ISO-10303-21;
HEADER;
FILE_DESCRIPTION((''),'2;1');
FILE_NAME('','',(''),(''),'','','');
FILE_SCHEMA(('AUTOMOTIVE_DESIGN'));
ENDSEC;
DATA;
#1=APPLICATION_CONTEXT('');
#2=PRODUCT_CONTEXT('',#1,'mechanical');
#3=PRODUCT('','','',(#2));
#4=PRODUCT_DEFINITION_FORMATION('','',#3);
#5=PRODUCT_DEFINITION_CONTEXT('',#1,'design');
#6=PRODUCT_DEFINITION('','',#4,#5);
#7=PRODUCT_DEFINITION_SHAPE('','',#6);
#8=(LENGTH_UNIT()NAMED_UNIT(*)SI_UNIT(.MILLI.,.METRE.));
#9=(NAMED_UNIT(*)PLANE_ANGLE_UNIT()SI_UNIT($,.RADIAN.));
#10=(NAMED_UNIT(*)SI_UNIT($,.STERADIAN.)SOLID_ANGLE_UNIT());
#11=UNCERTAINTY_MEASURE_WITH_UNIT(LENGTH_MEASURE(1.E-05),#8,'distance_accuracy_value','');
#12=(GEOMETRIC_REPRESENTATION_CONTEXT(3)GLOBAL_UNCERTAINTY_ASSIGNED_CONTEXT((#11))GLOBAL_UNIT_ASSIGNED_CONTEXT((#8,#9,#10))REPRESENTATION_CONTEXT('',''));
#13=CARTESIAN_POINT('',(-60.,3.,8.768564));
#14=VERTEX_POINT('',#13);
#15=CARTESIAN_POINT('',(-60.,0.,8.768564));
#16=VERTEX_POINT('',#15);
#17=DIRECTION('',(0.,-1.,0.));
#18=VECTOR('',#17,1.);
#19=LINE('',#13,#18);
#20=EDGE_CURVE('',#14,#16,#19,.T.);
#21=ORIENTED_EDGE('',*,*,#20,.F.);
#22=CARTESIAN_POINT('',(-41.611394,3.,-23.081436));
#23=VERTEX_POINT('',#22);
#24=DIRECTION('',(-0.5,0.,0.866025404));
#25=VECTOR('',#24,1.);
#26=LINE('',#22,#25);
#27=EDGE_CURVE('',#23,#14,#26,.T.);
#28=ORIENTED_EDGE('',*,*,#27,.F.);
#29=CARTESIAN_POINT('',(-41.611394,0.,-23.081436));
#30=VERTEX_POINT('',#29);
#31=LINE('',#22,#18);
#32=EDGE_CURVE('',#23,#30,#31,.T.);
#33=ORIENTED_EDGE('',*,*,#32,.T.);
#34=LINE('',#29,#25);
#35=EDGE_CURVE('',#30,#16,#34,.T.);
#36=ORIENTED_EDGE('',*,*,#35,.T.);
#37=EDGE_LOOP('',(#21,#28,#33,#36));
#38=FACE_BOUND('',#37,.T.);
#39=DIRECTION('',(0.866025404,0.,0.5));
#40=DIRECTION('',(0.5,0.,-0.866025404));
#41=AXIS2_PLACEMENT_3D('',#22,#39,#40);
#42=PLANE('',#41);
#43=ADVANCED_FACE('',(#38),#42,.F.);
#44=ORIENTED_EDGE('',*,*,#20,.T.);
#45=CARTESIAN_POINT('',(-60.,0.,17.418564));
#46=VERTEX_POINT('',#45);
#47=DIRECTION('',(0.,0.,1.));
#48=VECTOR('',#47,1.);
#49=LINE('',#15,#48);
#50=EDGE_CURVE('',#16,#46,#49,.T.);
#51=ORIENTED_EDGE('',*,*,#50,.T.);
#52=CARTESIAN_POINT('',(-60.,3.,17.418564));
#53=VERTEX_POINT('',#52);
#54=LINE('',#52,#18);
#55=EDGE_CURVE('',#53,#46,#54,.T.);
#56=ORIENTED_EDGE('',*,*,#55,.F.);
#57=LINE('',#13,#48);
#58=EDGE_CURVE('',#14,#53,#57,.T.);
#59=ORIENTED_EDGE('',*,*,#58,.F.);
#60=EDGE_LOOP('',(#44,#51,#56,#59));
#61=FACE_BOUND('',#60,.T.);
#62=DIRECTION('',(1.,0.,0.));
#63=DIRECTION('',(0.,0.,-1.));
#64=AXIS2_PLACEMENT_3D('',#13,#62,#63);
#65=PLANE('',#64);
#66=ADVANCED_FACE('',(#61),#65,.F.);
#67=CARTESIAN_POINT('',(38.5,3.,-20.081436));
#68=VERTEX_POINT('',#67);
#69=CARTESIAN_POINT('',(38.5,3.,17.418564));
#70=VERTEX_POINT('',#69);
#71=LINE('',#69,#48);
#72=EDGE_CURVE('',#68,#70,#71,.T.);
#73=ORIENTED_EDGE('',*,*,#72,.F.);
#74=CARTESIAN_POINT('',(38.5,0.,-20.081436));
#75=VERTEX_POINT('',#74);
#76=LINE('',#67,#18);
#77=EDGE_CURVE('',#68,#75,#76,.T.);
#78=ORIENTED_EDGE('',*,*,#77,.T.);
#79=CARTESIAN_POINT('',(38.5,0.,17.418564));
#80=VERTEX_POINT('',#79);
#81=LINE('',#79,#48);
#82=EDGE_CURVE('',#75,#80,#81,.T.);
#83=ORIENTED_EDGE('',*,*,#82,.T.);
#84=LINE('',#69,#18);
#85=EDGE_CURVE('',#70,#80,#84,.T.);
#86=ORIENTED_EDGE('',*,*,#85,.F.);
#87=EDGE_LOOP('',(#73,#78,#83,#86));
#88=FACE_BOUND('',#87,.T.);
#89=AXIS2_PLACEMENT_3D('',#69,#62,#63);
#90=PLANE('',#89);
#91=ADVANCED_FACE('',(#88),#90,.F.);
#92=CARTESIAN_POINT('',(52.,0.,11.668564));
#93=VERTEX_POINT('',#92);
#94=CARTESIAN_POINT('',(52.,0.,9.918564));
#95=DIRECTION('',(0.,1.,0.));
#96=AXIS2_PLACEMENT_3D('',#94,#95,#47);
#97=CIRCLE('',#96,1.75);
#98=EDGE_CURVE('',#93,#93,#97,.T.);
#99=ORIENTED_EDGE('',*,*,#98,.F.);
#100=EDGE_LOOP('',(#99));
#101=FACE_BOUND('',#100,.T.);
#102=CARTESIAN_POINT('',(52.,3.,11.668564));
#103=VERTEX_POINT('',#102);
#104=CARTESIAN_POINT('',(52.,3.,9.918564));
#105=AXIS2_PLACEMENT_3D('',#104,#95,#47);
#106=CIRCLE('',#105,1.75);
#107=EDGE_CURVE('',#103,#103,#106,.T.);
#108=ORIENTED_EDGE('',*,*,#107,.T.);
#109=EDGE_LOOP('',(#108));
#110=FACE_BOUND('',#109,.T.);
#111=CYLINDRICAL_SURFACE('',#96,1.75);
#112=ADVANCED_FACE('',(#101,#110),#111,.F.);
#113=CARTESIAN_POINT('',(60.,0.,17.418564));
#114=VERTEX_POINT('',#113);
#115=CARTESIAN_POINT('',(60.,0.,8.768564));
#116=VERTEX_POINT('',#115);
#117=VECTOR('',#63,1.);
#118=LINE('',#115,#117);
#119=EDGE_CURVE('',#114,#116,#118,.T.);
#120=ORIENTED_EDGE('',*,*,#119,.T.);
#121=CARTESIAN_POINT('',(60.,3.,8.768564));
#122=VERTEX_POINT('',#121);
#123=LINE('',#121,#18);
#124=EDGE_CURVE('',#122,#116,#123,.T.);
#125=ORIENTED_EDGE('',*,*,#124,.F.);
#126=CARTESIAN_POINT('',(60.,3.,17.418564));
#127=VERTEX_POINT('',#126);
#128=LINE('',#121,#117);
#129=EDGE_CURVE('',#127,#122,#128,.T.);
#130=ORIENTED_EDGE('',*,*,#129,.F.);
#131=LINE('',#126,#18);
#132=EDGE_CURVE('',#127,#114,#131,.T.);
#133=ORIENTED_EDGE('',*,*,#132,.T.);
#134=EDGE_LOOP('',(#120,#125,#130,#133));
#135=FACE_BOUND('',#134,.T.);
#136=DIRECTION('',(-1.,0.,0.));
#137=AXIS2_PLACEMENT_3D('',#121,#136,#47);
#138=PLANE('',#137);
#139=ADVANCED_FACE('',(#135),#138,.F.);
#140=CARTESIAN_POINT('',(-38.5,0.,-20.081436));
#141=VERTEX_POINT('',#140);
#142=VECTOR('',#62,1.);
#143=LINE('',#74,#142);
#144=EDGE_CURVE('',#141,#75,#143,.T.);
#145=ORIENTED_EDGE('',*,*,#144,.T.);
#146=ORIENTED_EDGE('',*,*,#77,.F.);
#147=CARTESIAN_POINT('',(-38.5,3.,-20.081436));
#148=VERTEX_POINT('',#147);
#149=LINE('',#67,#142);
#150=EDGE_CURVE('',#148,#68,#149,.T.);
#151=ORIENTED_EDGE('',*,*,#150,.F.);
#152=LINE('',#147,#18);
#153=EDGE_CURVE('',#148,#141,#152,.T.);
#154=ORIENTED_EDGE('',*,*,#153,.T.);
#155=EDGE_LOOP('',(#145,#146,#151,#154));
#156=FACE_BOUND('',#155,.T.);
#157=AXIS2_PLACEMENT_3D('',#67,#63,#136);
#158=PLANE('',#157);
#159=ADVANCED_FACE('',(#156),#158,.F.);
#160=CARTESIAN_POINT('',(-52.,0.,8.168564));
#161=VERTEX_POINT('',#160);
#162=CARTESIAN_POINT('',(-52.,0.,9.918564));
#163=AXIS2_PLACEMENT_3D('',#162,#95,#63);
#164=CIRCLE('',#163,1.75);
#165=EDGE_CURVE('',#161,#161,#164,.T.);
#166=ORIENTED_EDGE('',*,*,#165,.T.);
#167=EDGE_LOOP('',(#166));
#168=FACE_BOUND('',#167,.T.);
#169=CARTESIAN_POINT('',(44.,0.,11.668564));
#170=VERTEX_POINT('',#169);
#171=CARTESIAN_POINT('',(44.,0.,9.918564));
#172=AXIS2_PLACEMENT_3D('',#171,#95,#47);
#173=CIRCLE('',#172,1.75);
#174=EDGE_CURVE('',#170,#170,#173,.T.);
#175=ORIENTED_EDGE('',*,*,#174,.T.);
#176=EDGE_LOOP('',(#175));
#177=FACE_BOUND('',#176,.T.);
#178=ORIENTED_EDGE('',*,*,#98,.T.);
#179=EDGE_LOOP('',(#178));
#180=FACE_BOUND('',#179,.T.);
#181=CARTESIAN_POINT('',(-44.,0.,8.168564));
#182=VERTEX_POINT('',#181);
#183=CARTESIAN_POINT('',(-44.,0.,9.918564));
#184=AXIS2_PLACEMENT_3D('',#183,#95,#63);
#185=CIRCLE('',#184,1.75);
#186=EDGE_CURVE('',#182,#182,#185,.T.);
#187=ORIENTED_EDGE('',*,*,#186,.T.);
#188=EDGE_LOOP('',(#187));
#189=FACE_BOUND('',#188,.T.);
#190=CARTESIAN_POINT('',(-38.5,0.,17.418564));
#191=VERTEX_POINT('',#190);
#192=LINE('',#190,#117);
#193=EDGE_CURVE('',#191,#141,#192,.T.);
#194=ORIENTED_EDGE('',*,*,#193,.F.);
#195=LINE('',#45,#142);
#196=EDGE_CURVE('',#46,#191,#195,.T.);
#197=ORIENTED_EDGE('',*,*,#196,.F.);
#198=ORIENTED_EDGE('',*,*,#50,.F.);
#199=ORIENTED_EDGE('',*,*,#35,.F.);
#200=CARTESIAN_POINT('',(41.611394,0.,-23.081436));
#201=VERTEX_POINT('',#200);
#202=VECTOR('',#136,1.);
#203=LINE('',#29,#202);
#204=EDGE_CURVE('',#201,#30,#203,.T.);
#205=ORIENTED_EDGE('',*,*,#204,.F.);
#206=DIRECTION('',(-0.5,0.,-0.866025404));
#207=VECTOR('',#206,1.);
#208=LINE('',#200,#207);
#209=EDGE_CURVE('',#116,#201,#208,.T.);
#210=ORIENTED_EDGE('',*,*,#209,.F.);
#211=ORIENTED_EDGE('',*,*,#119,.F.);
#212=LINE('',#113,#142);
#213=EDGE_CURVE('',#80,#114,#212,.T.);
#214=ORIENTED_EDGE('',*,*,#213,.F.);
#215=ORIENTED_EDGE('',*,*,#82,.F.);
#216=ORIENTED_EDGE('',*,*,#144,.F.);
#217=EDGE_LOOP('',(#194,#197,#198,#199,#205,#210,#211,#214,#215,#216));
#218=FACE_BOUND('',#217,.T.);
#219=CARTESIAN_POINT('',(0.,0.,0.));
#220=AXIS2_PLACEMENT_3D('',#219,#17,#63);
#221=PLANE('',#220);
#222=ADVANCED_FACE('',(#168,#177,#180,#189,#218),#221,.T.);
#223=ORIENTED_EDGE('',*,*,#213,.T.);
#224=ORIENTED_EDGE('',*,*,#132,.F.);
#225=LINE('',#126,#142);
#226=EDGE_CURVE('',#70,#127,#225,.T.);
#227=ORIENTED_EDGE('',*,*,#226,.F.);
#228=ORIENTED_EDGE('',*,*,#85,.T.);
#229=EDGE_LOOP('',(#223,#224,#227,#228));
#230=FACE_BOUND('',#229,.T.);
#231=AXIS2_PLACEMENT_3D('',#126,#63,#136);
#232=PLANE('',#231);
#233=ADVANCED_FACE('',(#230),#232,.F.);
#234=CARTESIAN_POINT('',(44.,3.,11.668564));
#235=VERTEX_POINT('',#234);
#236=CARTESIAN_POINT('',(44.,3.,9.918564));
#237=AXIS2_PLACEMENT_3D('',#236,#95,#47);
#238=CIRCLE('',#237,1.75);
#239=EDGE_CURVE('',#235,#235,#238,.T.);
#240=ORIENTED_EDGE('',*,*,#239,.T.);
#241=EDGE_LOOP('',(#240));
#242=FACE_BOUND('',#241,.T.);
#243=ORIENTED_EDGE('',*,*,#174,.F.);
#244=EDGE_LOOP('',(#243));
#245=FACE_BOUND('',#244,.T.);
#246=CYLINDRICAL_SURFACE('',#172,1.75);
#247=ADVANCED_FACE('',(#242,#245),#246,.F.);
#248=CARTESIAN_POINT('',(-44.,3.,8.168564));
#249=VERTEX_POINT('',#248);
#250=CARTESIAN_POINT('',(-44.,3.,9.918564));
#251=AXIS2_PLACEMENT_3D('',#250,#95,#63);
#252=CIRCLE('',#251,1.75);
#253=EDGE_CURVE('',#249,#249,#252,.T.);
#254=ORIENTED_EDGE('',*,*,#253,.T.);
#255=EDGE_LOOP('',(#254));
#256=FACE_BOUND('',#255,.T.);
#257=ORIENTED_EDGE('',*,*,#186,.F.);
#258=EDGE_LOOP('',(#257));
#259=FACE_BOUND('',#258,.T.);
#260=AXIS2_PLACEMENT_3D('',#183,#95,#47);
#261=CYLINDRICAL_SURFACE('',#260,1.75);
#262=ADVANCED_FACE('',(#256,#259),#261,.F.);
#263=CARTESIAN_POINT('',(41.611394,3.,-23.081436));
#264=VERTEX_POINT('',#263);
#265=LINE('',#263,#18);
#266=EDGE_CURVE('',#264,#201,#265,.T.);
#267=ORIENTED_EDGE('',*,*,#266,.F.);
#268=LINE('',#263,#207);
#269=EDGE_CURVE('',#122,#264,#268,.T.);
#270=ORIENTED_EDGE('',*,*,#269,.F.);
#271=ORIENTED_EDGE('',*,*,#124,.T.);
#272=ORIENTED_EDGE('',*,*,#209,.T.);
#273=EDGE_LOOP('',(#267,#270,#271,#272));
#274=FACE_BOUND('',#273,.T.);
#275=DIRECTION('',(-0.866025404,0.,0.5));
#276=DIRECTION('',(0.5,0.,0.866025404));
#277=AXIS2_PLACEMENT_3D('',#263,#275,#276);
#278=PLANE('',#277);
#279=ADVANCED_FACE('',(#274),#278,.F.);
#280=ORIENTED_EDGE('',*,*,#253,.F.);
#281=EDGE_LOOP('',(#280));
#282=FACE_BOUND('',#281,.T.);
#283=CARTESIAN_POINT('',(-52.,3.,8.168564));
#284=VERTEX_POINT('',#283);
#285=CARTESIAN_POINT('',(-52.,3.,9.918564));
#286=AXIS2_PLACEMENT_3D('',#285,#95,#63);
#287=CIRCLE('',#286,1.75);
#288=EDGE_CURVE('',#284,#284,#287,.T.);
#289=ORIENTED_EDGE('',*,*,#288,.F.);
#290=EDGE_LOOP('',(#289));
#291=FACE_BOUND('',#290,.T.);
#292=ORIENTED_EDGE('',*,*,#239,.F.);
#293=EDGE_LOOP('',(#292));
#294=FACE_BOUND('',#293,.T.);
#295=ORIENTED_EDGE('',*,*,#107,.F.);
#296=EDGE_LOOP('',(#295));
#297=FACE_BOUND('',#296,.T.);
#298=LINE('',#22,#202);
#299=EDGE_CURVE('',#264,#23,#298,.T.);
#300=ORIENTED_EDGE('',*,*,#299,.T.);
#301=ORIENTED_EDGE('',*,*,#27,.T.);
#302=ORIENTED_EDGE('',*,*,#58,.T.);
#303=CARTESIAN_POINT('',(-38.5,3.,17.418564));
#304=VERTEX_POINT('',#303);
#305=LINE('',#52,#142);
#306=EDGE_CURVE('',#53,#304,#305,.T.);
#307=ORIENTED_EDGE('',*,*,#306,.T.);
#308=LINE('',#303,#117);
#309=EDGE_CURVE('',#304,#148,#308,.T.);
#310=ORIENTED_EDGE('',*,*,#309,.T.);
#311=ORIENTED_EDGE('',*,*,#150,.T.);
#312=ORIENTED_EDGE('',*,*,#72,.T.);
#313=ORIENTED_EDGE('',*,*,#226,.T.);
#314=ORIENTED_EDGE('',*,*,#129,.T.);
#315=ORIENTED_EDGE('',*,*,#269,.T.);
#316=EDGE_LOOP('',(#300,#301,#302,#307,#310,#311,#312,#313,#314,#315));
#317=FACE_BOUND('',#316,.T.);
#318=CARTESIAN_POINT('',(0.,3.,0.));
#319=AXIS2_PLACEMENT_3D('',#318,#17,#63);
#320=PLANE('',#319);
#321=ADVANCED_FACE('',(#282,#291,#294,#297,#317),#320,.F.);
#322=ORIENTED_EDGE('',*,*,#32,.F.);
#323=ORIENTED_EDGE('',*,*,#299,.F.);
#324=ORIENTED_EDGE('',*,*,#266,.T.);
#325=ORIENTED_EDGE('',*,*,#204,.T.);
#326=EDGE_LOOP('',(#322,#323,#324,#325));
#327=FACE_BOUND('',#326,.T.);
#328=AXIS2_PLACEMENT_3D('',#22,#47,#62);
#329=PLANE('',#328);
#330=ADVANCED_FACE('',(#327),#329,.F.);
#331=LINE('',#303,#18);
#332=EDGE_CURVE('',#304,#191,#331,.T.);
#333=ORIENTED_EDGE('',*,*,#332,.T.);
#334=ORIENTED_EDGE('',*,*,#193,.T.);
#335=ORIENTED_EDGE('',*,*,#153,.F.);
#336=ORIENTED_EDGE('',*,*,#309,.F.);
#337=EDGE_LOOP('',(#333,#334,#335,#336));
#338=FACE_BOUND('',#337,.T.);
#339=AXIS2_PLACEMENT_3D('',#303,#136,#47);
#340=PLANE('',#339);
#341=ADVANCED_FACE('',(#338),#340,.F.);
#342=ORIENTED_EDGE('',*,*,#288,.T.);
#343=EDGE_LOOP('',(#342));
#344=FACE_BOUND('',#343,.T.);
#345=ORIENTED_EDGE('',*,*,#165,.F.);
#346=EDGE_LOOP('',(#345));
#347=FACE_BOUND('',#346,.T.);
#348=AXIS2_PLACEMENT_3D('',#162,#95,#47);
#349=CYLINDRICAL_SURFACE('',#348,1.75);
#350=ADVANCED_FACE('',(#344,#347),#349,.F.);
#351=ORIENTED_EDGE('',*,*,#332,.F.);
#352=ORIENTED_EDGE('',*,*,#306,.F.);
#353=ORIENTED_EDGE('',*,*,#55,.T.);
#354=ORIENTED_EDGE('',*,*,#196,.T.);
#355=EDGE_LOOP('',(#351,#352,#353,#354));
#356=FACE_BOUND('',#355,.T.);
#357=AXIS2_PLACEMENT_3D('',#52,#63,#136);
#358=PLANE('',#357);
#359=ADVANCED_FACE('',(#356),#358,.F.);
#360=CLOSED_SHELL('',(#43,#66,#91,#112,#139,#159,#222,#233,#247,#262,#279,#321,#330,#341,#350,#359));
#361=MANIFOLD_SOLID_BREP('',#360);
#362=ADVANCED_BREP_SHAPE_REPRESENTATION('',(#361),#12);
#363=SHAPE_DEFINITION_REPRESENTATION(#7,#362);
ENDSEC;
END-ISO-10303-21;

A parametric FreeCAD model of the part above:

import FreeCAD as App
import Part
import Sketcher

V = App.Vector
Q = App.Units.Quantity


def add_polygon(sketch, points):
    """Adds a closed chain of lines whose ends are joined by coincident constraints."""
    first, n = sketch.GeometryCount, len(points)
    for a, b in zip(points, points[1:] + points[:1]):
        sketch.addGeometry(Part.LineSegment(App.Vector(*a, 0), App.Vector(*b, 0)), False)
    for i in range(n):
        sketch.addConstraint(Sketcher.Constraint("Coincident", first + i, 2, first + (i + 1) % n, 1))

doc = App.newDocument("Part")
params = doc.addObject("Spreadsheet::Sheet", "Params")
for row, (alias, value) in enumerate([
    ("sketch1_width", "77 mm"),
    ("sketch1_width2", "21.5 mm"),
    ("sketch1_height", "37.5 mm"),
    ("sketch1_height2", "8.65 mm"),
    ("pad1_length", "3 mm"),
    ("sketch2_diameter", "3.5 mm"),
], start=1):
    params.set(f"A{row}", alias)
    params.set(f"B{row}", "=" + value)
    params.setAlias(f"B{row}", alias)

body = doc.addObject("PartDesign::Body", "Body")

# Sketch on XZ plane
sketch1 = body.newObject("Sketcher::SketchObject", "Sketch")
sketch1.AttachmentSupport = (doc.getObject("XZ_Plane"), [""])
sketch1.MapMode = "FlatFace"
add_polygon(sketch1, [(42, -23), (-42, -23), (-60, 9), (-60, 17), (-38, 17), (-38, -20), (38, -20), (38, 17), (60, 17), (60, 9)])  # lines 0-9
sketch1.addConstraint(Sketcher.Constraint("Horizontal", 0))
sketch1.addConstraint(Sketcher.Constraint("Vertical", 2))
sketch1.addConstraint(Sketcher.Constraint("Horizontal", 3))
sketch1.addConstraint(Sketcher.Constraint("Vertical", 4))
sketch1.addConstraint(Sketcher.Constraint("Horizontal", 5))
sketch1.addConstraint(Sketcher.Constraint("Vertical", 6))
sketch1.addConstraint(Sketcher.Constraint("Horizontal", 7))
sketch1.addConstraint(Sketcher.Constraint("Vertical", 8))
sketch1.addConstraint(Sketcher.Constraint("Symmetric", 3, 2, 6, 2, -2))
sketch1.addConstraint(Sketcher.Constraint("Symmetric", 1, 2, 8, 2, -2))
sketch1.addConstraint(Sketcher.Constraint("Equal", 1, 9))
sketch1.addConstraint(Sketcher.Constraint("DistanceX", 5, 1, 5, 2, 77.0))
sketch1.addConstraint(Sketcher.Constraint("Angle", 1, Q("120 deg")))
sketch1.addConstraint(Sketcher.Constraint("DistanceX", 3, 1, 3, 2, 21.5))
sketch1.addConstraint(Sketcher.Constraint("DistanceY", 4, 2, 4, 1, 37.5))
sketch1.addConstraint(Sketcher.Constraint("DistanceY", 0, 2, 4, 2, 3.0))
sketch1.addConstraint(Sketcher.Constraint("DistanceY", 2, 1, 2, 2, 8.65))
sketch1.addConstraint(Sketcher.Constraint("DistanceY", 0, 2, -1, 1, 23.081436))
sketch1.setExpression("Constraints[21]", "Params.sketch1_width")
sketch1.setExpression("Constraints[23]", "Params.sketch1_width2")
sketch1.setExpression("Constraints[24]", "Params.sketch1_height")
sketch1.setExpression("Constraints[26]", "Params.sketch1_height2")
pad1 = body.newObject("PartDesign::Pad", "Pad")
pad1.Profile = sketch1
pad1.setExpression("Length", "Params.pad1_length")
pad1.Reversed = True

# Sketch on XZ plane
sketch2 = body.newObject("Sketcher::SketchObject", "Sketch001")
sketch2.AttachmentSupport = (doc.getObject("XZ_Plane"), [""])
sketch2.MapMode = "FlatFace"
sketch2.AttachmentOffset = App.Placement(V(0, 0, -3), App.Rotation())
sketch2.addGeometry(Part.Circle(V(52, 9.9, 0), V(0, 0, 1), 1.8), False)
sketch2.addGeometry(Part.Circle(V(44, 9.9, 0), V(0, 0, 1), 1.8), False)
sketch2.addGeometry(Part.Circle(V(-52, 9.9, 0), V(0, 0, 1), 1.8), False)
sketch2.addGeometry(Part.Circle(V(-44, 9.9, 0), V(0, 0, 1), 1.8), False)
sketch2.addConstraint(Sketcher.Constraint("Equal", 0, 1))
sketch2.addConstraint(Sketcher.Constraint("Equal", 1, 2))
sketch2.addConstraint(Sketcher.Constraint("Equal", 2, 3))
sketch2.addConstraint(Sketcher.Constraint("Symmetric", 0, 3, 2, 3, -2))
sketch2.addConstraint(Sketcher.Constraint("Symmetric", 1, 3, 3, 3, -2))
sketch2.addConstraint(Sketcher.Constraint("Horizontal", 0, 3, 1, 3))
sketch2.addConstraint(Sketcher.Constraint("Diameter", 0, 3.5))
sketch2.addConstraint(Sketcher.Constraint("DistanceX", -1, 1, 0, 3, 52.0))
sketch2.addConstraint(Sketcher.Constraint("DistanceX", -1, 1, 1, 3, 44.0))
sketch2.addConstraint(Sketcher.Constraint("DistanceY", -1, 1, 0, 3, 9.918564))
sketch2.setExpression("Constraints[6]", "Params.sketch2_diameter")
pocket1 = body.newObject("PartDesign::Pocket", "Pocket")
pocket1.Profile = sketch2
pocket1.Type = "ThroughAll"
pocket1.Reversed = True

doc.recompute()
